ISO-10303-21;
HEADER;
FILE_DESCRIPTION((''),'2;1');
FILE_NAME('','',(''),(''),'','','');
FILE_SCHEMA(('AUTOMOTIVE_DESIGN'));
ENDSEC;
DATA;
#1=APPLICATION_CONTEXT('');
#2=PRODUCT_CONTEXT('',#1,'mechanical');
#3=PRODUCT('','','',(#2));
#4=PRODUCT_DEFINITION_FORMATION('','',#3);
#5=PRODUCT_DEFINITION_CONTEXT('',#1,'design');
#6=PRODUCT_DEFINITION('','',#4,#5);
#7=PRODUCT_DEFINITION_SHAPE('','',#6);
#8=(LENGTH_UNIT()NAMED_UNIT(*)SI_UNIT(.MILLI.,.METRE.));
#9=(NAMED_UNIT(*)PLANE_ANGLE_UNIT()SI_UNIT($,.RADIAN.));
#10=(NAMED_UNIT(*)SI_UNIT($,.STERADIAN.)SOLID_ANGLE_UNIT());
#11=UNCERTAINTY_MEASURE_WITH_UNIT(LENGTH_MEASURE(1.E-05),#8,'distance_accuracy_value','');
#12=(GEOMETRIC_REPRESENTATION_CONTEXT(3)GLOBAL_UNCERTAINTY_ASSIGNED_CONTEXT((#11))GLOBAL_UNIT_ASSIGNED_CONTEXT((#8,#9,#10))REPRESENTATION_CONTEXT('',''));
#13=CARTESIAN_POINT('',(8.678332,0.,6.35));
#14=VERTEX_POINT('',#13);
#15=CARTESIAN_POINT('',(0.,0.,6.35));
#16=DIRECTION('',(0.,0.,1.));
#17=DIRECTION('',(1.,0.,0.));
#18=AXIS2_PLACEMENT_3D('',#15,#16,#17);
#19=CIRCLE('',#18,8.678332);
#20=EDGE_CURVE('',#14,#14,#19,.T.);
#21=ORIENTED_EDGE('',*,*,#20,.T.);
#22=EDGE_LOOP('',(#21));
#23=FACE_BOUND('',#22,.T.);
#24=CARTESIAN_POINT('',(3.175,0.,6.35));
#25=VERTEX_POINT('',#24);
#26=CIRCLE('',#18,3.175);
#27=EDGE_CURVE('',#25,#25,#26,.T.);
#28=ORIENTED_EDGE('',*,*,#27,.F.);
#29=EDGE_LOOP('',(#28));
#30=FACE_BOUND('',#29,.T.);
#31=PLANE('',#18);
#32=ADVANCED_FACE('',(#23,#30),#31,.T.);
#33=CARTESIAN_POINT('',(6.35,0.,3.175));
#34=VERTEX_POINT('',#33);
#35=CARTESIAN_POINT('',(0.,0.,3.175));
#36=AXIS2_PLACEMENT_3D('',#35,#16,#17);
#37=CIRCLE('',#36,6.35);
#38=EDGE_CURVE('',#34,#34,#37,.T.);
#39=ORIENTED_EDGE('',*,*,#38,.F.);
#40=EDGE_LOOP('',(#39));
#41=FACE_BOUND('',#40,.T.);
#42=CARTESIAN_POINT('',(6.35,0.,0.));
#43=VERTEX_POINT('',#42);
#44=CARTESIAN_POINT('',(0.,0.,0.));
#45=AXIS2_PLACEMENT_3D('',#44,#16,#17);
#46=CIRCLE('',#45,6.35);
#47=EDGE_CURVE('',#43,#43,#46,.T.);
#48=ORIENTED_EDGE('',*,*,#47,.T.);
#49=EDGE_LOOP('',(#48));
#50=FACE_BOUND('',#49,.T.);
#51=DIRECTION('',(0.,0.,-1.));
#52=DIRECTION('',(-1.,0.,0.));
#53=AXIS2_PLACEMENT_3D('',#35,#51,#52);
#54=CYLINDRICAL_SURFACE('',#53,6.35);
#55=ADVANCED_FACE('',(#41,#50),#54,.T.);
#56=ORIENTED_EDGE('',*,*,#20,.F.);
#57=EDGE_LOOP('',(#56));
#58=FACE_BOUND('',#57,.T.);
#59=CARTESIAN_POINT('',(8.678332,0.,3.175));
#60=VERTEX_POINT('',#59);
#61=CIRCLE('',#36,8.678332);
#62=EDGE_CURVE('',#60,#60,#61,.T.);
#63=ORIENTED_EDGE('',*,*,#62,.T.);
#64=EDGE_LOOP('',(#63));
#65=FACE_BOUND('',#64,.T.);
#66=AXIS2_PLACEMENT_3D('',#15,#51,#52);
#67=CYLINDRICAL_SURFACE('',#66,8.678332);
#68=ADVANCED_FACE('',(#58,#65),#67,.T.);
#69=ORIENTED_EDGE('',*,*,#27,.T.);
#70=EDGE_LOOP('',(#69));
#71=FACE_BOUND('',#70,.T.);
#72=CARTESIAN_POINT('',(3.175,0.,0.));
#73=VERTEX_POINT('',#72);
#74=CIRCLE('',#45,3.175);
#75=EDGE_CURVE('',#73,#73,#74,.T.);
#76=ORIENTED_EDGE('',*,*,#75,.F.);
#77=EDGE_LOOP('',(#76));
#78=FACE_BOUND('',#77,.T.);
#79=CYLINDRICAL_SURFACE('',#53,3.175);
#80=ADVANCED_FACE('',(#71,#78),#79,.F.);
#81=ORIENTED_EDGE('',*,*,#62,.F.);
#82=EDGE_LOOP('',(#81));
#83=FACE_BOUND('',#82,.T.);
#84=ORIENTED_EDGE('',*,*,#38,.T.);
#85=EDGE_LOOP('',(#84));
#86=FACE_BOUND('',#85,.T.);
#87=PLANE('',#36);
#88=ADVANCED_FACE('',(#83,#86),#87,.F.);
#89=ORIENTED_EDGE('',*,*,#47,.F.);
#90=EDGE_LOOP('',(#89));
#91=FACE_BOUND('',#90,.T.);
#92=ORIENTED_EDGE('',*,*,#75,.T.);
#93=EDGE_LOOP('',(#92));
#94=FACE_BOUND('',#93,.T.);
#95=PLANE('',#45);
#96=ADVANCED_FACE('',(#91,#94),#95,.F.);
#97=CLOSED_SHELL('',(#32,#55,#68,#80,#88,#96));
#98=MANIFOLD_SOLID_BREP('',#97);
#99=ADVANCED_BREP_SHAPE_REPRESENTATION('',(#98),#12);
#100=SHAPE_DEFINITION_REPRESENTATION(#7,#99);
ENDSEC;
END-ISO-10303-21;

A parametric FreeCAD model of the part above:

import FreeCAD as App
import Part
import Sketcher

V = App.Vector
Q = App.Units.Quantity

doc = App.newDocument("Part")
body = doc.addObject("PartDesign::Body", "Body")

# Sketch on XY plane
sketch1 = body.newObject("Sketcher::SketchObject", "Sketch")
sketch1.AttachmentSupport = (doc.getObject("XY_Plane"), [""])
sketch1.MapMode = "FlatFace"
sketch1.addGeometry([
    Part.Circle(V(0, 0, 0), V(0, 0, 1), 6.3),
    Part.Circle(V(0, 0, 0), V(0, 0, 1), 3.2),
], False)
sketch1.addConstraint([
    Sketcher.Constraint("Coincident", 0, 3, -1, 1),
    Sketcher.Constraint("Coincident", 1, 3, -1, 1),
    Sketcher.Constraint("Diameter", 0, Q("0.5 in")),
    Sketcher.Constraint("Diameter", 1, Q("0.25 in")),
])
pad1 = body.newObject("PartDesign::Pad", "Pad")
pad1.Profile = sketch1
pad1.Length = Q("0.125 in")

# Sketch on XY plane
sketch2 = body.newObject("Sketcher::SketchObject", "Sketch001")
sketch2.AttachmentSupport = (doc.getObject("XY_Plane"), [""])
sketch2.MapMode = "FlatFace"
sketch2.AttachmentOffset = App.Placement(V(0, 0, 0.125 * 25.4), App.Rotation())
sketch2.addGeometry([
    Part.Circle(V(0, 0, 0), V(0, 0, 1), 8.7),
    Part.Circle(V(0, 0, 0), V(0, 0, 1), 3.2),
], False)
sketch2.addConstraint([
    Sketcher.Constraint("Coincident", 0, 3, -1, 1),
    Sketcher.Constraint("Coincident", 1, 3, -1, 1),
    Sketcher.Constraint("Diameter", 1, Q("0.25 in")),
    Sketcher.Constraint("Diameter", 0, 17.356663),
])
pad2 = body.newObject("PartDesign::Pad", "Pad001")
pad2.Profile = sketch2
pad2.Length = Q("0.125 in")

doc.recompute()
